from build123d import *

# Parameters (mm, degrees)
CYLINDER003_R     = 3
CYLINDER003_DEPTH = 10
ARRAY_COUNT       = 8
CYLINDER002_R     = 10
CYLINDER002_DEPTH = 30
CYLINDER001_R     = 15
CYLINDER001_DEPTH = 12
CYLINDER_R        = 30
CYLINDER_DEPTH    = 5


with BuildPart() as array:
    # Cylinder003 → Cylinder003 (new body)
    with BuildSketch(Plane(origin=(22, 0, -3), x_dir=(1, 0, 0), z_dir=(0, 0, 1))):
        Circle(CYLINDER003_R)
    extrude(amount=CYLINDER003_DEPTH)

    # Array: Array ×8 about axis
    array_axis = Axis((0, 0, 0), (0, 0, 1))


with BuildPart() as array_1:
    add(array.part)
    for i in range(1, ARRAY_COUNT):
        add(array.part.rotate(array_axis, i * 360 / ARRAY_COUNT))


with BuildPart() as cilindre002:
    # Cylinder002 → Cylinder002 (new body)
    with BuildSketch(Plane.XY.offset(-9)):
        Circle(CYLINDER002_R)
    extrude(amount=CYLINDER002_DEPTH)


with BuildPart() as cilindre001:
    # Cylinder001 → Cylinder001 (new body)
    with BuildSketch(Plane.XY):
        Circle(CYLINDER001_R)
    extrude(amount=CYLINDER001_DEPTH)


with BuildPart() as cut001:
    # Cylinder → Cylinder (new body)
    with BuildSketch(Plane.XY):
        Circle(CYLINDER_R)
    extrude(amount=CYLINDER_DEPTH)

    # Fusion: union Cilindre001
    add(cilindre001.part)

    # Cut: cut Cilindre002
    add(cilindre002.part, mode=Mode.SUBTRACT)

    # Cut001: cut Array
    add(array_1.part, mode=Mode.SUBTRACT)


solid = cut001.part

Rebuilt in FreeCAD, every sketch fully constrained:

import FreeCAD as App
import Part
import Sketcher

doc = App.newDocument("Part")
params = doc.addObject("Spreadsheet::Sheet", "Params")
for row, (alias, value) in enumerate([
    ("sketch1_diameter", "6 mm"),
    ("pad1_length", "10 mm"),
    ("sketch2_diameter", "20 mm"),
    ("pad2_length", "30 mm"),
    ("sketch3_diameter", "30 mm"),
    ("pad3_length", "12 mm"),
    ("sketch4_diameter", "60 mm"),
    ("pad4_length", "5 mm"),
], start=1):
    params.set(f"A{row}", alias)
    params.set(f"B{row}", "=" + value)
    params.setAlias(f"B{row}", alias)

body = doc.addObject("PartDesign::Body", "Body")

# Sketch on XY plane
sketch1 = body.newObject("Sketcher::SketchObject", "Sketch")
sketch1.AttachmentSupport = (doc.getObject("XY_Plane"), [""])
sketch1.MapMode = "FlatFace"
sketch1.AttachmentOffset = App.Placement(App.Vector(0, 0, -3), App.Rotation())
sketch1.addGeometry(Part.Circle(App.Vector(22, 0, 0), App.Vector(0, 0, 1), 3), False)
sketch1.addConstraint([
    Sketcher.Constraint("PointOnObject", 0, 3, -1),
    Sketcher.Constraint("Diameter", 0, 6.0),
    Sketcher.Constraint("DistanceX", -1, 1, 0, 3, 22.0),
])
sketch1.setExpression("Constraints[1]", "Params.sketch1_diameter")
pad1 = body.newObject("PartDesign::Pad", "Pad")
pad1.Profile = sketch1
pad1.setExpression("Length", "Params.pad1_length")
body2 = doc.addObject("PartDesign::Body", "Body001")
body2.AllowCompound = True
doc.recompute()

body2.BaseFeature = body
doc.recompute()

body3 = doc.addObject("PartDesign::Body", "Body002")
body3.BaseFeature = body
body3.Placement = App.Placement(App.Vector(0, 0, 0), App.Rotation(App.Vector(0, 0, 1), 45))
boolean = body2.newObject("PartDesign::Boolean", "Boolean")
boolean.Type = "Fuse"
boolean.addObjects([body3])
doc.recompute()

body4 = doc.addObject("PartDesign::Body", "Body003")
body4.BaseFeature = body
body4.Placement = App.Placement(App.Vector(0, 0, 0), App.Rotation(App.Vector(0, 0, 1), 90))
boolean2 = body2.newObject("PartDesign::Boolean", "Boolean001")
boolean2.Type = "Fuse"
boolean2.addObjects([body4])
doc.recompute()

body5 = doc.addObject("PartDesign::Body", "Body004")
body5.BaseFeature = body
body5.Placement = App.Placement(App.Vector(0, 0, 0), App.Rotation(App.Vector(0, 0, 1), 135))
boolean3 = body2.newObject("PartDesign::Boolean", "Boolean002")
boolean3.Type = "Fuse"
boolean3.addObjects([body5])
doc.recompute()

body6 = doc.addObject("PartDesign::Body", "Body005")
body6.BaseFeature = body
body6.Placement = App.Placement(App.Vector(0, 0, 0), App.Rotation(App.Vector(0, 0, 1), 180))
boolean4 = body2.newObject("PartDesign::Boolean", "Boolean003")
boolean4.Type = "Fuse"
boolean4.addObjects([body6])
doc.recompute()

body7 = doc.addObject("PartDesign::Body", "Body006")
body7.BaseFeature = body
body7.Placement = App.Placement(App.Vector(0, 0, 0), App.Rotation(App.Vector(0, 0, 1), 225))
boolean5 = body2.newObject("PartDesign::Boolean", "Boolean004")
boolean5.Type = "Fuse"
boolean5.addObjects([body7])
doc.recompute()

body8 = doc.addObject("PartDesign::Body", "Body007")
body8.BaseFeature = body
body8.Placement = App.Placement(App.Vector(0, 0, 0), App.Rotation(App.Vector(0, 0, 1), 270))
boolean6 = body2.newObject("PartDesign::Boolean", "Boolean005")
boolean6.Type = "Fuse"
boolean6.addObjects([body8])
doc.recompute()

body.Placement = App.Placement(App.Vector(0, 0, 0), App.Rotation(App.Vector(0, 0, 1), 315))
boolean7 = body2.newObject("PartDesign::Boolean", "Boolean006")
boolean7.Type = "Fuse"
boolean7.addObjects([body])
body9 = doc.addObject("PartDesign::Body", "Body008")

# Sketch on XY plane
sketch2 = body9.newObject("Sketcher::SketchObject", "Sketch001")
sketch2.AttachmentSupport = (doc.getObject("XY_Plane008"), [""])
sketch2.MapMode = "FlatFace"
sketch2.AttachmentOffset = App.Placement(App.Vector(0, 0, -9), App.Rotation())
sketch2.addGeometry(Part.Circle(App.Vector(0, 0, 0), App.Vector(0, 0, 1), 10), False)
sketch2.addConstraint([
    Sketcher.Constraint("Coincident", 0, 3, -1, 1),
    Sketcher.Constraint("Diameter", 0, 20.0),
])
sketch2.setExpression("Constraints[1]", "Params.sketch2_diameter")
pad2 = body9.newObject("PartDesign::Pad", "Pad001")
pad2.Profile = sketch2
pad2.setExpression("Length", "Params.pad2_length")
body10 = doc.addObject("PartDesign::Body", "Body009")

# Sketch on XY plane
sketch3 = body10.newObject("Sketcher::SketchObject", "Sketch002")
sketch3.AttachmentSupport = (doc.getObject("XY_Plane009"), [""])
sketch3.MapMode = "FlatFace"
sketch3.addGeometry(Part.Circle(App.Vector(0, 0, 0), App.Vector(0, 0, 1), 15), False)
sketch3.addConstraint([
    Sketcher.Constraint("Coincident", 0, 3, -1, 1),
    Sketcher.Constraint("Diameter", 0, 30.0),
])
sketch3.setExpression("Constraints[1]", "Params.sketch3_diameter")
pad3 = body10.newObject("PartDesign::Pad", "Pad002")
pad3.Profile = sketch3
pad3.setExpression("Length", "Params.pad3_length")
body11 = doc.addObject("PartDesign::Body", "Body010")

# Sketch on XY plane
sketch4 = body11.newObject("Sketcher::SketchObject", "Sketch003")
sketch4.AttachmentSupport = (doc.getObject("XY_Plane010"), [""])
sketch4.MapMode = "FlatFace"
sketch4.addGeometry(Part.Circle(App.Vector(0, 0, 0), App.Vector(0, 0, 1), 30), False)
sketch4.addConstraint([
    Sketcher.Constraint("Coincident", 0, 3, -1, 1),
    Sketcher.Constraint("Diameter", 0, 60.0),
])
sketch4.setExpression("Constraints[1]", "Params.sketch4_diameter")
pad4 = body11.newObject("PartDesign::Pad", "Pad003")
pad4.Profile = sketch4
pad4.setExpression("Length", "Params.pad4_length")
doc.recompute()

boolean8 = body11.newObject("PartDesign::Boolean", "Boolean007")
boolean8.Type = "Fuse"
boolean8.addObjects([body10])
doc.recompute()

boolean9 = body11.newObject("PartDesign::Boolean", "Boolean008")
boolean9.Type = "Cut"
boolean9.addObjects([body9])
doc.recompute()

boolean10 = body11.newObject("PartDesign::Boolean", "Boolean009")
boolean10.Type = "Cut"
boolean10.addObjects([body2])

doc.recompute()
